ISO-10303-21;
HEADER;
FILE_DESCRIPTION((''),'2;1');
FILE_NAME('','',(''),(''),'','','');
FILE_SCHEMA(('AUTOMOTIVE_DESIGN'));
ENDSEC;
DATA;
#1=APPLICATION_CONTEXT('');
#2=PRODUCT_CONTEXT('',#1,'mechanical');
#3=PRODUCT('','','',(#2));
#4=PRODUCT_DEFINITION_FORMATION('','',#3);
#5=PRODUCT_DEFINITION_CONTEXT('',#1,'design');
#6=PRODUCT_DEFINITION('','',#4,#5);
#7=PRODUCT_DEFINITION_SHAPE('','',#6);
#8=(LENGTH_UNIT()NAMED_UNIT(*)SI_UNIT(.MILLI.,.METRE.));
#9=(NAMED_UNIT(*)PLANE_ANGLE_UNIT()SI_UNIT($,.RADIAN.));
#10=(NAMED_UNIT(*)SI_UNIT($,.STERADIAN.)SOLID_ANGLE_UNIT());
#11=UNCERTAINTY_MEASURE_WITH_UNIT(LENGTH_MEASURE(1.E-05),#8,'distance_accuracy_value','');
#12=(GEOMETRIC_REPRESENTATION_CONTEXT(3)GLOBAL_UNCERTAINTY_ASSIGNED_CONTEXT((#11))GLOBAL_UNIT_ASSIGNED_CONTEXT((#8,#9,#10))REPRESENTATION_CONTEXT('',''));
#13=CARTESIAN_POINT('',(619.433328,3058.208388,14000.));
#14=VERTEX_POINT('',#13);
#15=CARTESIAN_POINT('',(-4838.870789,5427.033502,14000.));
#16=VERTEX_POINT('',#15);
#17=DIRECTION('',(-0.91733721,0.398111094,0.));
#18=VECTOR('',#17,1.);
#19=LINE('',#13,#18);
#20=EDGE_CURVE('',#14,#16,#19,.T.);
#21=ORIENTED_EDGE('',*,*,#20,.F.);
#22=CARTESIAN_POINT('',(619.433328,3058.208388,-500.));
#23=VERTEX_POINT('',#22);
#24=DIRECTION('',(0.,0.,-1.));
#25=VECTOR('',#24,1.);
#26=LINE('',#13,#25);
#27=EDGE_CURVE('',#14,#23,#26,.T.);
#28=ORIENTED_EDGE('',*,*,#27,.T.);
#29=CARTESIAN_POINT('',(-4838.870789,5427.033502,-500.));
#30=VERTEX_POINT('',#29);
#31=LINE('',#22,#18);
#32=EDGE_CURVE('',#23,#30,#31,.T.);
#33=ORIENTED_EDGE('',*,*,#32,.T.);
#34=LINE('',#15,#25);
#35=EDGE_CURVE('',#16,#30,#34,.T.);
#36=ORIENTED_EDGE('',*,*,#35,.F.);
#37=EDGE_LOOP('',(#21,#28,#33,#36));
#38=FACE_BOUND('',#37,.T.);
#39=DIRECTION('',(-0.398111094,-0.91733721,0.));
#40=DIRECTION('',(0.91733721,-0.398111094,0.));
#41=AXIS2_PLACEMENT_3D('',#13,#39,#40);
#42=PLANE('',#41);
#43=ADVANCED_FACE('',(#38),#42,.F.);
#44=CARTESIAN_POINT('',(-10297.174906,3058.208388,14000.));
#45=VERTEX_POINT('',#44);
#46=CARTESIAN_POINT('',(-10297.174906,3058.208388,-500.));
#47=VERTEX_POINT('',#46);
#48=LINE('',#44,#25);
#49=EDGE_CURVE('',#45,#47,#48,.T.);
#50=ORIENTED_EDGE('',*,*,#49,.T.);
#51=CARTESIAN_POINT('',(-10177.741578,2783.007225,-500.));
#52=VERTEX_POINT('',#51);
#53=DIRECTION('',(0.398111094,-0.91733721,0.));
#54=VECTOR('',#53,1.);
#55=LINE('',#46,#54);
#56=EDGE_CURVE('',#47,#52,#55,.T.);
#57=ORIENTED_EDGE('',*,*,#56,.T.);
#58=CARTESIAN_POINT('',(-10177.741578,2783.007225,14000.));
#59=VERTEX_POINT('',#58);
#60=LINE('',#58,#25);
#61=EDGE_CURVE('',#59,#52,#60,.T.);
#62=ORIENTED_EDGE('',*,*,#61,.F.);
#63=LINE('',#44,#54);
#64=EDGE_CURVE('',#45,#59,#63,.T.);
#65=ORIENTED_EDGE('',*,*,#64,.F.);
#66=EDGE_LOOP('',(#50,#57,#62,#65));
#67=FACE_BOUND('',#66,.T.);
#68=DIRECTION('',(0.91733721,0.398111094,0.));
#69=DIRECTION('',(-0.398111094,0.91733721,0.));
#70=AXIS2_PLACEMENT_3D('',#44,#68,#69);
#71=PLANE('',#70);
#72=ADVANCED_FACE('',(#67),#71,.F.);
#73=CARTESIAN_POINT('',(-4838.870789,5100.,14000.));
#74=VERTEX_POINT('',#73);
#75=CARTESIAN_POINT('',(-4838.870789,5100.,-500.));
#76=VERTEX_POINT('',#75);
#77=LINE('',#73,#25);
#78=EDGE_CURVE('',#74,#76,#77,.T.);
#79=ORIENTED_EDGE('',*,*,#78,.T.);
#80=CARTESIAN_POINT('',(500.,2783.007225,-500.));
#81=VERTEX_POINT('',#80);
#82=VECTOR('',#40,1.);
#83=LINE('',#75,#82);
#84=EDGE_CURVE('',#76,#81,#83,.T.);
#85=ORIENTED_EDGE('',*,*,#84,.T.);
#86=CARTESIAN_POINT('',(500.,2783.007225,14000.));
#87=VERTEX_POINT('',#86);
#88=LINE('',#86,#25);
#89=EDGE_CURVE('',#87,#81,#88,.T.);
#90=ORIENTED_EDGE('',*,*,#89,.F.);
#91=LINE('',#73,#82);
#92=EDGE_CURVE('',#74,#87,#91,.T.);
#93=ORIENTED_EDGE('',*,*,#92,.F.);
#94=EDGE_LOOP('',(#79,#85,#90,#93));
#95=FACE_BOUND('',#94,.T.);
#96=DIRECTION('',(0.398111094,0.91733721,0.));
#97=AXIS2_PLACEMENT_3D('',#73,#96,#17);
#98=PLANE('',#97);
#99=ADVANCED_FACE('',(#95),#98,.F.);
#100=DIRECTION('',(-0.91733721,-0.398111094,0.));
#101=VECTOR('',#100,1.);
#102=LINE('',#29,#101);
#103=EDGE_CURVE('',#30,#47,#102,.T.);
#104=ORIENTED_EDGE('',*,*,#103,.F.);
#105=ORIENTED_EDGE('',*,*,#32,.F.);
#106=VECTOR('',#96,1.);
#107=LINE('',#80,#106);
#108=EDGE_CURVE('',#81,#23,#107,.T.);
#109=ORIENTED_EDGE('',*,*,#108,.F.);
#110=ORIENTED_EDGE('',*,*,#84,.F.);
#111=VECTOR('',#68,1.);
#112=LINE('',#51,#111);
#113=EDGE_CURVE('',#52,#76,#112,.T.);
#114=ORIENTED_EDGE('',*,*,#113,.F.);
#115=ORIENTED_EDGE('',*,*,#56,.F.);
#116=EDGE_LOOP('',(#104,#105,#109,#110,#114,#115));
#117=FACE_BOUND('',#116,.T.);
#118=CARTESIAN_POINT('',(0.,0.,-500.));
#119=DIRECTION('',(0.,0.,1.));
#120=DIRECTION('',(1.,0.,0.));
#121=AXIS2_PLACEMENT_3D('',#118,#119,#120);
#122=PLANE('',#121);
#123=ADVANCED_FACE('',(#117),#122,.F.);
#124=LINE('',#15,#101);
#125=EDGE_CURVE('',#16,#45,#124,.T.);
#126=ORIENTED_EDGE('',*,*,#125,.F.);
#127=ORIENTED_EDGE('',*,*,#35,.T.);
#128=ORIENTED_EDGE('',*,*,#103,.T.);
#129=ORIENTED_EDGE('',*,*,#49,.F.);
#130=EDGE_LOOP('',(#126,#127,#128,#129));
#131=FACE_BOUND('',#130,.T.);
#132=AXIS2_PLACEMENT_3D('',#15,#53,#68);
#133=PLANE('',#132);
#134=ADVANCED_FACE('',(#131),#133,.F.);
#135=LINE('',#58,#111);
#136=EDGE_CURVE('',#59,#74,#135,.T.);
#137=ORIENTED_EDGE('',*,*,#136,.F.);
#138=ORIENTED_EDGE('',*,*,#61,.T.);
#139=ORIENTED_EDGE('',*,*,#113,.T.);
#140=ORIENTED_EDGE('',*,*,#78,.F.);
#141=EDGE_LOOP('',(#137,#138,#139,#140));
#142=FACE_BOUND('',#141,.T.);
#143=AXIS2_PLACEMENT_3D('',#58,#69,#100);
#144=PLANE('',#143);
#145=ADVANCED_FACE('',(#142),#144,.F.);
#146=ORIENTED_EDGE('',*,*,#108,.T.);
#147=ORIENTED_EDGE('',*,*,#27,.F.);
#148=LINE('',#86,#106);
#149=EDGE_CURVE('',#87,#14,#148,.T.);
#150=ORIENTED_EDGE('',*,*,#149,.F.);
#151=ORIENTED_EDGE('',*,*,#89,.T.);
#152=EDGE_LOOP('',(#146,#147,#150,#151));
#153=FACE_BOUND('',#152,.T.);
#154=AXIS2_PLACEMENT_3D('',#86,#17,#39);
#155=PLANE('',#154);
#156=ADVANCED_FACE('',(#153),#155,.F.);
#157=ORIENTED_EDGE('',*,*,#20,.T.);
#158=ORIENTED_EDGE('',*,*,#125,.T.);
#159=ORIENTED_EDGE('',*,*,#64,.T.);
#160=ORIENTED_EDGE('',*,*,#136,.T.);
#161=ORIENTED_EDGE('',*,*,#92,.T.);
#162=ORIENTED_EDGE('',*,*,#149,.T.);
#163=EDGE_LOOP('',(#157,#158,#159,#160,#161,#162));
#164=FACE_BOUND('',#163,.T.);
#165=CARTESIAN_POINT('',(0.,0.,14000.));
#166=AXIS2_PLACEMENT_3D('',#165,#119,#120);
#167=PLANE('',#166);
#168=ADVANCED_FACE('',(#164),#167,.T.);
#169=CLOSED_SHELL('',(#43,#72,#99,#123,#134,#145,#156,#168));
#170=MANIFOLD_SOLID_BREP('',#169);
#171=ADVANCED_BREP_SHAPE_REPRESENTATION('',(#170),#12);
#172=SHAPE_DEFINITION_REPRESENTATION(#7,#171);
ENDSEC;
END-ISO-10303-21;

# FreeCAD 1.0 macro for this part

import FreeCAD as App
import Part
import Sketcher

V = App.Vector
Q = App.Units.Quantity

doc = App.newDocument("Part")
params = doc.addObject("Spreadsheet::Sheet", "Params")
for row, (alias, value) in enumerate([
    ("sketch1_length", "300 mm"),
    ("pad1_length", "14000 mm"),
    ("pad1_length2", "500 mm"),
], start=1):
    params.set(f"A{row}", alias)
    params.set(f"B{row}", "=" + value)
    params.setAlias(f"B{row}", alias)

body = doc.addObject("PartDesign::Body", "Body")

sketch1 = body.newObject("Sketcher::SketchObject", "Sketch")
sketch1.AttachmentSupport = (doc.getObject("XY_Plane"), [""])
sketch1.MapMode = "FlatFace"
sketch1.addGeometry(Part.LineSegment(V(-10178, 2783, 0), V(-4839, 5100, 0)), False)
sketch1.addGeometry(Part.LineSegment(V(-4839, 5100, 0), V(500, 2783, 0)), False)
sketch1.addGeometry(Part.LineSegment(V(500, 2783, 0), V(619, 3058, 0)), False)
sketch1.addGeometry(Part.LineSegment(V(619, 3058, 0), V(-4839, 5427, 0)), False)
sketch1.addGeometry(Part.LineSegment(V(-4839, 5427, 0), V(-10297, 3058, 0)), False)
sketch1.addGeometry(Part.LineSegment(V(-10297, 3058, 0), V(-10178, 2783, 0)), False)
sketch1.addConstraint(Sketcher.Constraint("Coincident", 0, 2, 1, 1))
sketch1.addConstraint(Sketcher.Constraint("Coincident", 1, 2, 2, 1))
sketch1.addConstraint(Sketcher.Constraint("Coincident", 2, 2, 3, 1))
sketch1.addConstraint(Sketcher.Constraint("Coincident", 3, 2, 4, 1))
sketch1.addConstraint(Sketcher.Constraint("Coincident", 4, 2, 5, 1))
sketch1.addConstraint(Sketcher.Constraint("Coincident", 5, 2, 0, 1))
sketch1.addConstraint(Sketcher.Constraint("Perpendicular", 1, 2))
sketch1.addConstraint(Sketcher.Constraint("Perpendicular", 2, 3))
sketch1.addConstraint(Sketcher.Constraint("Parallel", 0, 4))
sketch1.addConstraint(Sketcher.Constraint("Perpendicular", 4, 5))
sketch1.addConstraint(Sketcher.Constraint("Horizontal", 2, 2, 4, 2))
sketch1.addConstraint(Sketcher.Constraint("Horizontal", 1, 2, 5, 2))
sketch1.addConstraint(Sketcher.Constraint("Vertical", 0, 2, 3, 2))
sketch1.addConstraint(Sketcher.Constraint("Distance", 2, Q("300 mm")))
sketch1.addConstraint(Sketcher.Constraint("DistanceY", -1, 1, 0, 2, Q("5100 mm")))
sketch1.addConstraint(Sketcher.Constraint("DistanceX", -1, 1, 1, 2, Q("500 mm")))
sketch1.addConstraint(Sketcher.Constraint("DistanceY", -1, 1, 3, 2, Q("5427.033502 mm")))
sketch1.addConstraint(Sketcher.Constraint("DistanceX", 0, 2, -1, 1, Q("4838.870789 mm")))
sketch1.setExpression("Constraints[13]", "Params.sketch1_length")
pad1 = body.newObject("PartDesign::Pad", "Pad")
pad1.Profile = sketch1
pad1.Type = "TwoLengths"
pad1.setExpression("Length", "Params.pad1_length")
pad1.setExpression("Length2", "Params.pad1_length2")

doc.recompute()
